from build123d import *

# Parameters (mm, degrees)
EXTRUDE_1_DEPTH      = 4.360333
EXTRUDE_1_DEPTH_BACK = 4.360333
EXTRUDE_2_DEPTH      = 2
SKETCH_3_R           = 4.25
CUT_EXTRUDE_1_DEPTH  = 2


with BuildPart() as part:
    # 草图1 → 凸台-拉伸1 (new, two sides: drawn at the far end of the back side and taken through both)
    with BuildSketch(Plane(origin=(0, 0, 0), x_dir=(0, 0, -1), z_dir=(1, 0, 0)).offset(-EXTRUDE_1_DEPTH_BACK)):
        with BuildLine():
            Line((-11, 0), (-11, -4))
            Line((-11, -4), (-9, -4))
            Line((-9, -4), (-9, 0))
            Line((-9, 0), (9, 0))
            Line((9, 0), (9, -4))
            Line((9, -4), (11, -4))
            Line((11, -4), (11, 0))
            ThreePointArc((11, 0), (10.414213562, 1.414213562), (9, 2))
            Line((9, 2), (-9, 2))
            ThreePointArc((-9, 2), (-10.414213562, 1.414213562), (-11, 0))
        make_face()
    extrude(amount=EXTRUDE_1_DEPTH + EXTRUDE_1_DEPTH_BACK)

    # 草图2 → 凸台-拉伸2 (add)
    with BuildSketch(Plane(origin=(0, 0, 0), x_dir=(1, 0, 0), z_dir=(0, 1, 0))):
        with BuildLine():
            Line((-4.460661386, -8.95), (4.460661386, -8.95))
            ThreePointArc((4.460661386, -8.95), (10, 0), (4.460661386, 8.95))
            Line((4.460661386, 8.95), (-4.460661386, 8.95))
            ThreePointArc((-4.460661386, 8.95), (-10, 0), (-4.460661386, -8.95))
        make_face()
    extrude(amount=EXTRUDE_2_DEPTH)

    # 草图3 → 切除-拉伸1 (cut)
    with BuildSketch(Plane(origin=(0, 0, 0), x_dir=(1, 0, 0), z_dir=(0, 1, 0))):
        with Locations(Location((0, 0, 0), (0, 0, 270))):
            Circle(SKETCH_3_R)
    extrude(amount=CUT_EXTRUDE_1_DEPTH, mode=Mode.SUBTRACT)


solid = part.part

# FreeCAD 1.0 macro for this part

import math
import FreeCAD as App
import Part
import Sketcher

V = App.Vector

doc = App.newDocument("Part")
body = doc.addObject("PartDesign::Body", "Body")

# Sketch on YZ plane
sketch1 = doc.addObject("Sketcher::SketchObject", "Sketch")
body.addObject(sketch1)
sketch1.AttachmentSupport = (doc.YZ_Plane, [""])
sketch1.MapMode = "FlatFace"
sketch1.addGeometry([
    Part.LineSegment(V(0, 11, 0), V(-4, 11, 0)),  # 0
    Part.LineSegment(V(-4, 11, 0), V(-4, 9, 0)),  # 1
    Part.LineSegment(V(-4, 9, 0), V(0, 9, 0)),  # 2
    Part.LineSegment(V(0, 9, 0), V(0, -9, 0)),  # 3
    Part.LineSegment(V(0, -9, 0), V(-4, -9, 0)),  # 4
    Part.LineSegment(V(-4, -9, 0), V(-4, -11, 0)),  # 5
    Part.LineSegment(V(-4, -11, 0), V(0, -11, 0)),  # 6
    Part.ArcOfCircle(Part.Circle(V(0, -9, 0), V(0, 0, 1), 2), math.radians(-90), math.radians(0)),  # 7
    Part.LineSegment(V(2, -9, 0), V(2, 9, 0)),  # 8
    Part.ArcOfCircle(Part.Circle(V(0, 9, 0), V(0, 0, 1), 2), math.radians(0), math.radians(90)),  # 9
], False)
sketch1.addConstraint([
    Sketcher.Constraint("Coincident", 0, 2, 1, 1),
    Sketcher.Constraint("Coincident", 1, 2, 2, 1),
    Sketcher.Constraint("Coincident", 2, 2, 3, 1),
    Sketcher.Constraint("Coincident", 3, 2, 4, 1),
    Sketcher.Constraint("Coincident", 4, 2, 5, 1),
    Sketcher.Constraint("Coincident", 5, 2, 6, 1),
    Sketcher.Constraint("Tangent", 6, 2, 7, 1),
    Sketcher.Constraint("Tangent", 7, 2, 8, 1),
    Sketcher.Constraint("Tangent", 8, 2, 9, 1),
    Sketcher.Constraint("Tangent", 9, 2, 0, 1),
    Sketcher.Constraint("Horizontal", 0),
    Sketcher.Constraint("Vertical", 1),
    Sketcher.Constraint("Horizontal", 2),
    Sketcher.Constraint("Vertical", 3),
    Sketcher.Constraint("Horizontal", 4),
    Sketcher.Constraint("Vertical", 5),
    Sketcher.Constraint("Horizontal", 6),
    Sketcher.Constraint("Vertical", 8),
    Sketcher.Constraint("Coincident", 2, 2, 9, 3),
    Sketcher.Constraint("Coincident", 3, 2, 7, 3),
    Sketcher.Constraint("Symmetric", 7, 3, 9, 3, -1, 1),
    Sketcher.Constraint("Vertical", 1, 2, 4, 2),
    Sketcher.Constraint("Radius", 7, 2.0),
    Sketcher.Constraint("DistanceX", 0, 2, 0, 1, 4.0),
    Sketcher.Constraint("DistanceY", 3, 2, 3, 1, 18.0),
])
pad1 = doc.addObject("PartDesign::Pad", "Pad")
body.addObject(pad1)
pad1.Profile = sketch1
pad1.Type = "TwoLengths"
pad1.Length = 4.360333
pad1.Length2 = 4.360333

# Sketch on XZ plane
sketch2 = doc.addObject("Sketcher::SketchObject", "Sketch001")
body.addObject(sketch2)
sketch2.AttachmentSupport = (doc.XZ_Plane, [""])
sketch2.MapMode = "FlatFace"
sketch2.addGeometry([
    Part.LineSegment(V(-4, 9, 0), V(4, 9, 0)),
    Part.ArcOfCircle(Part.Circle(V(0, 0, 0), V(0, 0, 1), 10), math.radians(-64), math.radians(64)),
    Part.LineSegment(V(4, -9, 0), V(-4, -9, 0)),
    Part.ArcOfCircle(Part.Circle(V(0, 0, 0), V(0, 0, 1), 10), math.radians(116), math.radians(244)),
], False)
sketch2.addConstraint([
    Sketcher.Constraint("Coincident", 0, 2, 1, 2),
    Sketcher.Constraint("Coincident", 1, 1, 2, 1),
    Sketcher.Constraint("Coincident", 2, 2, 3, 2),
    Sketcher.Constraint("Coincident", 3, 1, 0, 1),
    Sketcher.Constraint("Horizontal", 0),
    Sketcher.Constraint("Horizontal", 2),
    Sketcher.Constraint("Coincident", 1, 3, -1, 1),
    Sketcher.Constraint("Coincident", 3, 3, -1, 1),
    Sketcher.Constraint("Equal", 1, 3),
    Sketcher.Constraint("Vertical", 0, 2, 1, 1),
    Sketcher.Constraint("Radius", 1, 10.0),
    Sketcher.Constraint("DistanceY", 1, 1, 0, 2, 17.9),
])
pad2 = doc.addObject("PartDesign::Pad", "Pad001")
body.addObject(pad2)
pad2.Profile = sketch2
pad2.Length = 2
pad2.Reversed = True

# Sketch on XZ plane
sketch3 = doc.addObject("Sketcher::SketchObject", "Sketch002")
body.addObject(sketch3)
sketch3.AttachmentSupport = (doc.XZ_Plane, [""])
sketch3.MapMode = "FlatFace"
sketch3.addGeometry(Part.Circle(V(0, 0, 0), V(0, 0, 1), 4.2), False)
sketch3.addConstraint([
    Sketcher.Constraint("Coincident", 0, 3, -1, 1),
    Sketcher.Constraint("Diameter", 0, 8.5),
])
pocket1 = doc.addObject("PartDesign::Pocket", "Pocket")
body.addObject(pocket1)
pocket1.Profile = sketch3
pocket1.Length = 2

doc.recompute()
